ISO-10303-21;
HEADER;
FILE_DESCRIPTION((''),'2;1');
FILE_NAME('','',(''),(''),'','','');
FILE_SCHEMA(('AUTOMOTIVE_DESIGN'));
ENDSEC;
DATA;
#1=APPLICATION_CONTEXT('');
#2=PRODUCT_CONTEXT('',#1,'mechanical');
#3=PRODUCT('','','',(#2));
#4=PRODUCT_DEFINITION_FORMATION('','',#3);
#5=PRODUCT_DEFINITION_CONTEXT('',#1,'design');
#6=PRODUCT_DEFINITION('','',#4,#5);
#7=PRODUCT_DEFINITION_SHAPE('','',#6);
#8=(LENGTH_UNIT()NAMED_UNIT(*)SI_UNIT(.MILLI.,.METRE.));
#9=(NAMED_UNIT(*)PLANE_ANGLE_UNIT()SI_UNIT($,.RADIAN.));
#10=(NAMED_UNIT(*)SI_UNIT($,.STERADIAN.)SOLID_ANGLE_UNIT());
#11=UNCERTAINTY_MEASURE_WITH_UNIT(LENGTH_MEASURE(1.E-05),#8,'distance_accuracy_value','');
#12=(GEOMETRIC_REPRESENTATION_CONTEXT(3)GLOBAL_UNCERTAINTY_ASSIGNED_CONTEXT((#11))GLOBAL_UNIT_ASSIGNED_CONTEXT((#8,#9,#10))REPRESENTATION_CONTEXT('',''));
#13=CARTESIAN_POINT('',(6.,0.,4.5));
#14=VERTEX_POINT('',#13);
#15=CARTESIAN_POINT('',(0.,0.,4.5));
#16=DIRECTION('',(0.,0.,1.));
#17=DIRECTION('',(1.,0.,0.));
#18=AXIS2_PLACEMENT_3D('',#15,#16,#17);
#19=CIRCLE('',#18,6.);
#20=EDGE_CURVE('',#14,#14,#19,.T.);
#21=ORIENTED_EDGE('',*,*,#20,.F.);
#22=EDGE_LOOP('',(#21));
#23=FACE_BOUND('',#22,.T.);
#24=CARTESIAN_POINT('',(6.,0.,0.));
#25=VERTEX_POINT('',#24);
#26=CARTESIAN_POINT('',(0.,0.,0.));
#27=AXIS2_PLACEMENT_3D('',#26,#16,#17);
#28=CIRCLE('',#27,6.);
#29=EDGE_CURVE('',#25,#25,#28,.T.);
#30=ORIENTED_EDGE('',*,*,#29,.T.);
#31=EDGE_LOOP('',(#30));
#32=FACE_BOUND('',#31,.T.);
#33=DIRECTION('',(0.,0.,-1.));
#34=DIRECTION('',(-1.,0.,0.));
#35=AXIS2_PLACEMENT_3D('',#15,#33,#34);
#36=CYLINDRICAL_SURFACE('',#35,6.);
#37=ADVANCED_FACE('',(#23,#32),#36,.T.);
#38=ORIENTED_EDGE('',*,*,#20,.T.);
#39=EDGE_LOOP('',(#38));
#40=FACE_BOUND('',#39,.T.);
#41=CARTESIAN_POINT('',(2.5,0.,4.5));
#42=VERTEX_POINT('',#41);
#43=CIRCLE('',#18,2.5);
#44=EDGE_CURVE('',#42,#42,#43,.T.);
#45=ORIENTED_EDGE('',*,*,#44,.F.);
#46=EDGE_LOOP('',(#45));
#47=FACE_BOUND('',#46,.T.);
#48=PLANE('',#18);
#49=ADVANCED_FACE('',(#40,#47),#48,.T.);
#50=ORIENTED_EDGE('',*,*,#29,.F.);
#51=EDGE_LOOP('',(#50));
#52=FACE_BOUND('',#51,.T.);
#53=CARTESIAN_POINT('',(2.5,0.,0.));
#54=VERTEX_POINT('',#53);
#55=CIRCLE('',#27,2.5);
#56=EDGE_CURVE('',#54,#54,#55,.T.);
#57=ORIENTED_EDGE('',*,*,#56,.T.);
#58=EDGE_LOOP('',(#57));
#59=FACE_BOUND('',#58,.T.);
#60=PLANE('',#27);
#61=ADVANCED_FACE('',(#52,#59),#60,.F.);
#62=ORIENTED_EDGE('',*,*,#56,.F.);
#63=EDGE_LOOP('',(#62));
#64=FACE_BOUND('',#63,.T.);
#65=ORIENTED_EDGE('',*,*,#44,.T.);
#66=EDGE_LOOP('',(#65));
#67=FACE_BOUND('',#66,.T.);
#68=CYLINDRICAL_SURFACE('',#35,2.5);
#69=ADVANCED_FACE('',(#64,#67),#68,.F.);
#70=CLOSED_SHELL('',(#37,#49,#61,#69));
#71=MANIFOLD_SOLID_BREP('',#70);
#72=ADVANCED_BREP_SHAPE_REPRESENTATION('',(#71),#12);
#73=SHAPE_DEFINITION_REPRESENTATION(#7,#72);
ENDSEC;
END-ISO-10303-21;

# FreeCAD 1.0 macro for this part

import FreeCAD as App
import Part
import Sketcher
from FreeCAD import Vector

doc = App.newDocument("Part")
body = doc.addObject("PartDesign::Body", "Body")

# Sketch on XY plane
sketch1 = body.newObject("Sketcher::SketchObject", "Sketch")
sketch1.AttachmentSupport = (doc.getObject("XY_Plane"), [""])
sketch1.MapMode = "FlatFace"
sketch1.addGeometry([
    Part.Circle(Vector(0, 0, 0), Vector(0, 0, 1), 6),
    Part.Circle(Vector(0, 0, 0), Vector(0, 0, 1), 2.5),
], False)
sketch1.addConstraint([
    Sketcher.Constraint("Coincident", 0, 3, -1, 1),
    Sketcher.Constraint("Coincident", 1, 3, -1, 1),
    Sketcher.Constraint("Diameter", 0, 12.0),
    Sketcher.Constraint("Diameter", 1, 5.0),
])
pad1 = body.newObject("PartDesign::Pad", "Pad")
pad1.Profile = sketch1
pad1.Length = 4.5

doc.recompute()
